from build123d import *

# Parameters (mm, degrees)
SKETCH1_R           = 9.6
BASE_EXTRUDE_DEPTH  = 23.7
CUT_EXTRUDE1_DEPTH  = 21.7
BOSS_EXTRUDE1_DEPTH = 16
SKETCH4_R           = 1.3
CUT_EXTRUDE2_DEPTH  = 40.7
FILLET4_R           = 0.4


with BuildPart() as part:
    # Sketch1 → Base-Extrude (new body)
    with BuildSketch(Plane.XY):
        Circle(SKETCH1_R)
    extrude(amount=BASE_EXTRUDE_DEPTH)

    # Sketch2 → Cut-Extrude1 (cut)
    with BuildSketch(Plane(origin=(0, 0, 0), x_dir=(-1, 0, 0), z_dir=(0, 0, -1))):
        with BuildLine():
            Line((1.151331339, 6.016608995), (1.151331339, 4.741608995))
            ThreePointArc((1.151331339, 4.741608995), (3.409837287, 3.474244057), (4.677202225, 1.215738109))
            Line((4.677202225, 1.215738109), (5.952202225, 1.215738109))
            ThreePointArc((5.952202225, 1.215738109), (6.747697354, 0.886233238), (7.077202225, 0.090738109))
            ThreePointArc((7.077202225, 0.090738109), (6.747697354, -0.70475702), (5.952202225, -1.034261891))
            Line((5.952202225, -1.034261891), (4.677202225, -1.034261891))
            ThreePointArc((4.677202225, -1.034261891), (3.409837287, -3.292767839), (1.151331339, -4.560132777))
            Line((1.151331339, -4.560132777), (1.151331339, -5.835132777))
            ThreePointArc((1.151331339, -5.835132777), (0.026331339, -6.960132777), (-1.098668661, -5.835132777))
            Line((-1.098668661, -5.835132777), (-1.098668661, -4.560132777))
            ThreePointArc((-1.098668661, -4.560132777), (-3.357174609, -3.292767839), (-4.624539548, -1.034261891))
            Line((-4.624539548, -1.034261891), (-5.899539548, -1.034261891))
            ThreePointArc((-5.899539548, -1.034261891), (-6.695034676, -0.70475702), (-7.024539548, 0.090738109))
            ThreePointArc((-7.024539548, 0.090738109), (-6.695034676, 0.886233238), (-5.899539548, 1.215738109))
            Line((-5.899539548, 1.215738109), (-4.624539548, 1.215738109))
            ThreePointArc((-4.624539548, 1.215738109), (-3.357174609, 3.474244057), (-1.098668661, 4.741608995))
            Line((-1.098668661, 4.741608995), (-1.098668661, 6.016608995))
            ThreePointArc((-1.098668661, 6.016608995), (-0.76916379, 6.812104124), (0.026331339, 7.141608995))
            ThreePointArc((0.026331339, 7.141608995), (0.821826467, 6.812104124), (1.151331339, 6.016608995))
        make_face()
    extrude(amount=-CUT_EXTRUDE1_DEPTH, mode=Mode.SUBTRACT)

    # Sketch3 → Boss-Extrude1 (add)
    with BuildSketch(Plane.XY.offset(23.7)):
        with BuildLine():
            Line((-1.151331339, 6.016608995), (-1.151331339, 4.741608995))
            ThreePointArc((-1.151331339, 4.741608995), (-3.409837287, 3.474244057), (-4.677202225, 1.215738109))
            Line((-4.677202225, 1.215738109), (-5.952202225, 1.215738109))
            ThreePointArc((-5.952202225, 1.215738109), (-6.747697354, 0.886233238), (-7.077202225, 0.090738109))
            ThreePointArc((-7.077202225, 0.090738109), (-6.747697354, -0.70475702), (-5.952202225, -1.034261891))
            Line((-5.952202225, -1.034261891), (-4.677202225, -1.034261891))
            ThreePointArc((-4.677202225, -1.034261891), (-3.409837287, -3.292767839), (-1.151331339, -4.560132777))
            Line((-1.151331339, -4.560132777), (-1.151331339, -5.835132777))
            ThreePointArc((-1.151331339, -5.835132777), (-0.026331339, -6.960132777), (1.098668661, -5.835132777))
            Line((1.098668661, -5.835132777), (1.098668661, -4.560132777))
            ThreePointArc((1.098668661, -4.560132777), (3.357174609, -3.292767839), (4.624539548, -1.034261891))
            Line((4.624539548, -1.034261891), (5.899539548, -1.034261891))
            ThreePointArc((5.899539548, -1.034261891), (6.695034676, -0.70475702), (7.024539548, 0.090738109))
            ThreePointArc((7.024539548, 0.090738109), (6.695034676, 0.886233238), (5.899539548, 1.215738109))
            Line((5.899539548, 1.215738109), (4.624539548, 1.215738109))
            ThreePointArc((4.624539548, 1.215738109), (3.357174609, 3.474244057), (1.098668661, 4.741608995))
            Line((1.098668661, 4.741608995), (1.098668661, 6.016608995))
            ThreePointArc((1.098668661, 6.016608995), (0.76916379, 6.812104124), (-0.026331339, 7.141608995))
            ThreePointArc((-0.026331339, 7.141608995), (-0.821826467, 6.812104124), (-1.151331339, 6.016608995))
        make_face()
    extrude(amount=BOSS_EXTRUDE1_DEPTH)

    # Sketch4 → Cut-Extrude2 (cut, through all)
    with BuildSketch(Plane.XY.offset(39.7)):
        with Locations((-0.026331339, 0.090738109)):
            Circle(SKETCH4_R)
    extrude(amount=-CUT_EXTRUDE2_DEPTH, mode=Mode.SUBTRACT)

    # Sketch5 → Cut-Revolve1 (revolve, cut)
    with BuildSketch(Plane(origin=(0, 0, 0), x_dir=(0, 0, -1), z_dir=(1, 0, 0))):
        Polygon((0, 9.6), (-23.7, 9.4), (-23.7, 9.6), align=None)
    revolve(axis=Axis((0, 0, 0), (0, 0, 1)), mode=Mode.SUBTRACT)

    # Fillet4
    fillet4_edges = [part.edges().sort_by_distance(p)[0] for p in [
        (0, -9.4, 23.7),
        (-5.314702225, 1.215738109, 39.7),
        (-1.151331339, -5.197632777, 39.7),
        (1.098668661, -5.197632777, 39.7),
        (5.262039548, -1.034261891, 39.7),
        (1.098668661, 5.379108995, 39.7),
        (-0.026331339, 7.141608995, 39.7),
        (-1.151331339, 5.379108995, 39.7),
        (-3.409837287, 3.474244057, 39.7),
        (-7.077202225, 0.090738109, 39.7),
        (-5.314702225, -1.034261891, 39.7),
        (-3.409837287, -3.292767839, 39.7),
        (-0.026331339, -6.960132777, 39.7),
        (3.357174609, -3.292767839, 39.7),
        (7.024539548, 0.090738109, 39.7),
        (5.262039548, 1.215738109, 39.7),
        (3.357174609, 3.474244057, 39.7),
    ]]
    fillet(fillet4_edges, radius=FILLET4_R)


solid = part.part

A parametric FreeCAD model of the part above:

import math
import FreeCAD as App
import Part
import Sketcher

V = App.Vector


def edges_at(feature, points):
    """Names of the edges that pass closest to the given points."""
    edges = feature.Shape.Edges
    near = lambda p: min(range(len(edges)), key=lambda i: edges[i].distToShape(Part.Vertex(*p))[0])
    return sorted({f"Edge{near(p) + 1}" for p in points})


def add_polygon(sketch, points):
    """Adds a closed chain of lines whose ends are joined by coincident constraints."""
    first, n = sketch.GeometryCount, len(points)
    for a, b in zip(points, points[1:] + points[:1]):
        sketch.addGeometry(Part.LineSegment(App.Vector(*a, 0), App.Vector(*b, 0)), False)
    for i in range(n):
        sketch.addConstraint(Sketcher.Constraint("Coincident", first + i, 2, first + (i + 1) % n, 1))

doc = App.newDocument("Part")
params = doc.addObject("Spreadsheet::Sheet", "Params")
for row, (alias, value) in enumerate([
    ("sketch1_diameter", "19.2 mm"),
    ("pad1_length", "23.7 mm"),
    ("pocket1_length", "21.7 mm"),
    ("pad2_length", "16 mm"),
    ("sketch4_diameter", "2.6 mm"),
    ("sketch5_width", "0.2 mm"),
    ("sketch5_height", "23.7 mm"),
    ("groove_angle", "360 deg"),
    ("fillet_radius", "0.4 mm"),
], start=1):
    params.set(f"A{row}", alias)
    params.set(f"B{row}", "=" + value)
    params.setAlias(f"B{row}", alias)

body = doc.addObject("PartDesign::Body", "Body")

sketch1 = body.newObject("Sketcher::SketchObject", "Sketch")
sketch1.AttachmentSupport = (doc.getObject("XY_Plane"), [""])
sketch1.MapMode = "FlatFace"
sketch1.addGeometry(Part.Circle(V(0, 0, 0), V(0, 0, 1), 10), False)
sketch1.addConstraint(Sketcher.Constraint("Coincident", 0, 3, -1, 1))
sketch1.addConstraint(Sketcher.Constraint("Diameter", 0, 19.2))
sketch1.setExpression("Constraints[1]", "Params.sketch1_diameter")
pad1 = body.newObject("PartDesign::Pad", "Pad")
pad1.Profile = sketch1
pad1.setExpression("Length", "Params.pad1_length")

sketch2 = body.newObject("Sketcher::SketchObject", "Sketch001")
sketch2.AttachmentSupport = (doc.getObject("XY_Plane"), [""])
sketch2.MapMode = "FlatFace"
sketch2.addGeometry(Part.LineSegment(V(-1.2, 4.7, 0), V(-1.2, 6, 0)), False)
sketch2.addGeometry(Part.ArcOfCircle(Part.Circle(V(0, 6, 0), V(0, 0, 1), 1.1), math.radians(90), math.radians(180)), False)
sketch2.addGeometry(Part.ArcOfCircle(Part.Circle(V(0, 6, 0), V(0, 0, 1), 1.1), math.radians(0), math.radians(90)), False)
sketch2.addGeometry(Part.LineSegment(V(1.1, 6, 0), V(1.1, 4.7, 0)), False)
sketch2.addGeometry(Part.ArcOfCircle(Part.Circle(V(0, 0.1, 0), V(0, 0, 1), 4.8), math.radians(14), math.radians(76)), False)
sketch2.addGeometry(Part.LineSegment(V(4.6, 1.2, 0), V(5.9, 1.2, 0)), False)
sketch2.addGeometry(Part.ArcOfCircle(Part.Circle(V(5.9, 0.1, 0), V(0, 0, 1), 1.1), math.radians(0), math.radians(90)), False)
sketch2.addGeometry(Part.ArcOfCircle(Part.Circle(V(5.9, 0.1, 0), V(0, 0, 1), 1.1), math.radians(-90), math.radians(0)), False)
sketch2.addGeometry(Part.LineSegment(V(5.9, -1, 0), V(4.6, -1, 0)), False)
sketch2.addGeometry(Part.ArcOfCircle(Part.Circle(V(0, 0.1, 0), V(0, 0, 1), 4.8), math.radians(-76), math.radians(-14)), False)
sketch2.addGeometry(Part.LineSegment(V(1.1, -4.6, 0), V(1.1, -5.8, 0)), False)
sketch2.addGeometry(Part.ArcOfCircle(Part.Circle(V(0, -5.8, 0), V(0, 0, 1), 1.1), math.radians(180), math.radians(360)), False)
sketch2.addGeometry(Part.LineSegment(V(-1.2, -5.8, 0), V(-1.2, -4.6, 0)), False)
sketch2.addGeometry(Part.ArcOfCircle(Part.Circle(V(0, 0.1, 0), V(0, 0, 1), 4.8), math.radians(-166), math.radians(-104)), False)
sketch2.addGeometry(Part.LineSegment(V(-4.7, -1, 0), V(-6, -1, 0)), False)
sketch2.addGeometry(Part.ArcOfCircle(Part.Circle(V(-6, 0.1, 0), V(0, 0, 1), 1.1), math.radians(180), math.radians(270)), False)
sketch2.addGeometry(Part.ArcOfCircle(Part.Circle(V(-6, 0.1, 0), V(0, 0, 1), 1.1), math.radians(90), math.radians(180)), False)
sketch2.addGeometry(Part.LineSegment(V(-6, 1.2, 0), V(-4.7, 1.2, 0)), False)
sketch2.addGeometry(Part.ArcOfCircle(Part.Circle(V(0, 0.1, 0), V(0, 0, 1), 4.8), math.radians(104), math.radians(166)), False)
sketch2.addConstraint(Sketcher.Constraint("Tangent", 0, 2, 1, 2))
sketch2.addConstraint(Sketcher.Constraint("Tangent", 1, 1, 2, 2))
sketch2.addConstraint(Sketcher.Constraint("Tangent", 2, 1, 3, 1))
sketch2.addConstraint(Sketcher.Constraint("Coincident", 3, 2, 4, 2))
sketch2.addConstraint(Sketcher.Constraint("Coincident", 4, 1, 5, 1))
sketch2.addConstraint(Sketcher.Constraint("Tangent", 5, 2, 6, 2))
sketch2.addConstraint(Sketcher.Constraint("Tangent", 6, 1, 7, 2))
sketch2.addConstraint(Sketcher.Constraint("Tangent", 7, 1, 8, 1))
sketch2.addConstraint(Sketcher.Constraint("Coincident", 8, 2, 9, 2))
sketch2.addConstraint(Sketcher.Constraint("Coincident", 9, 1, 10, 1))
sketch2.addConstraint(Sketcher.Constraint("Tangent", 10, 2, 11, 2))
sketch2.addConstraint(Sketcher.Constraint("Tangent", 11, 1, 12, 1))
sketch2.addConstraint(Sketcher.Constraint("Coincident", 12, 2, 13, 2))
sketch2.addConstraint(Sketcher.Constraint("Coincident", 13, 1, 14, 1))
sketch2.addConstraint(Sketcher.Constraint("Tangent", 14, 2, 15, 2))
sketch2.addConstraint(Sketcher.Constraint("Tangent", 15, 1, 16, 2))
sketch2.addConstraint(Sketcher.Constraint("Tangent", 16, 1, 17, 1))
sketch2.addConstraint(Sketcher.Constraint("Coincident", 17, 2, 18, 2))
sketch2.addConstraint(Sketcher.Constraint("Coincident", 18, 1, 0, 1))
sketch2.addConstraint(Sketcher.Constraint("Vertical", 0))
sketch2.addConstraint(Sketcher.Constraint("Vertical", 3))
sketch2.addConstraint(Sketcher.Constraint("Horizontal", 5))
sketch2.addConstraint(Sketcher.Constraint("Horizontal", 8))
sketch2.addConstraint(Sketcher.Constraint("Vertical", 10))
sketch2.addConstraint(Sketcher.Constraint("Vertical", 12))
sketch2.addConstraint(Sketcher.Constraint("Horizontal", 14))
sketch2.addConstraint(Sketcher.Constraint("Horizontal", 17))
sketch2.addConstraint(Sketcher.Constraint("Coincident", 9, 3, 4, 3))
sketch2.addConstraint(Sketcher.Constraint("Coincident", 13, 3, 4, 3))
sketch2.addConstraint(Sketcher.Constraint("Coincident", 18, 3, 4, 3))
sketch2.addConstraint(Sketcher.Constraint("Equal", 1, 2))
sketch2.addConstraint(Sketcher.Constraint("Equal", 2, 6))
sketch2.addConstraint(Sketcher.Constraint("Equal", 6, 7))
sketch2.addConstraint(Sketcher.Constraint("Equal", 4, 9))
sketch2.addConstraint(Sketcher.Constraint("Equal", 7, 11))
sketch2.addConstraint(Sketcher.Constraint("Equal", 9, 13))
sketch2.addConstraint(Sketcher.Constraint("Equal", 11, 15))
sketch2.addConstraint(Sketcher.Constraint("Equal", 15, 16))
sketch2.addConstraint(Sketcher.Constraint("Equal", 13, 18))
sketch2.addConstraint(Sketcher.Constraint("Horizontal", 4, 3, 6, 3))
sketch2.addConstraint(Sketcher.Constraint("Horizontal", 13, 3, 15, 3))
sketch2.addConstraint(Sketcher.Constraint("Horizontal", 18, 3, 6, 1))
sketch2.addConstraint(Sketcher.Constraint("Horizontal", 9, 1, 12, 2))
sketch2.addConstraint(Sketcher.Constraint("Horizontal", 6, 1, 15, 1))
sketch2.addConstraint(Sketcher.Constraint("Horizontal", 3, 2, 18, 1))
sketch2.addConstraint(Sketcher.Constraint("Vertical", 18, 3, 1, 1))
sketch2.addConstraint(Sketcher.Constraint("Equal", 8, 14))
sketch2.addConstraint(Sketcher.Constraint("Equal", 17, 0))
sketch2.addConstraint(Sketcher.Constraint("Equal", 3, 10))
sketch2.addConstraint(Sketcher.Constraint("Radius", 1, 1.125))
sketch2.addConstraint(Sketcher.Constraint("Radius", 4, 4.785))
sketch2.addConstraint(Sketcher.Constraint("DistanceY", 3, 2, 1, 1, 2.4))
sketch2.addConstraint(Sketcher.Constraint("DistanceX", 1, 3, -1, 1, 0.026331))
sketch2.addConstraint(Sketcher.Constraint("DistanceY", -1, 1, 1, 3, 6.016609))
pocket1 = body.newObject("PartDesign::Pocket", "Pocket")
pocket1.Profile = sketch2
pocket1.setExpression("Length", "Params.pocket1_length")
pocket1.Reversed = True

sketch3 = body.newObject("Sketcher::SketchObject", "Sketch002")
sketch3.AttachmentSupport = (doc.getObject("XY_Plane"), [""])
sketch3.MapMode = "FlatFace"
sketch3.AttachmentOffset = App.Placement(V(0, 0, 23.7), App.Rotation())
sketch3.addGeometry(Part.LineSegment(V(-1.2, 6, 0), V(-1.2, 4.7, 0)), False)
sketch3.addGeometry(Part.ArcOfCircle(Part.Circle(V(0, 0.1, 0), V(0, 0, 1), 4.8), math.radians(104), math.radians(166)), False)
sketch3.addGeometry(Part.LineSegment(V(-4.7, 1.2, 0), V(-6, 1.2, 0)), False)
sketch3.addGeometry(Part.ArcOfCircle(Part.Circle(V(-6, 0.1, 0), V(0, 0, 1), 1.1), math.radians(90), math.radians(180)), False)
sketch3.addGeometry(Part.ArcOfCircle(Part.Circle(V(-6, 0.1, 0), V(0, 0, 1), 1.1), math.radians(180), math.radians(270)), False)
sketch3.addGeometry(Part.LineSegment(V(-6, -1, 0), V(-4.7, -1, 0)), False)
sketch3.addGeometry(Part.ArcOfCircle(Part.Circle(V(0, 0.1, 0), V(0, 0, 1), 4.8), math.radians(-166), math.radians(-104)), False)
sketch3.addGeometry(Part.LineSegment(V(-1.2, -4.6, 0), V(-1.2, -5.8, 0)), False)
sketch3.addGeometry(Part.ArcOfCircle(Part.Circle(V(0, -5.8, 0), V(0, 0, 1), 1.1), math.radians(180), math.radians(360)), False)
sketch3.addGeometry(Part.LineSegment(V(1.1, -5.8, 0), V(1.1, -4.6, 0)), False)
sketch3.addGeometry(Part.ArcOfCircle(Part.Circle(V(0, 0.1, 0), V(0, 0, 1), 4.8), math.radians(-76), math.radians(-14)), False)
sketch3.addGeometry(Part.LineSegment(V(4.6, -1, 0), V(5.9, -1, 0)), False)
sketch3.addGeometry(Part.ArcOfCircle(Part.Circle(V(5.9, 0.1, 0), V(0, 0, 1), 1.1), math.radians(-90), math.radians(0)), False)
sketch3.addGeometry(Part.ArcOfCircle(Part.Circle(V(5.9, 0.1, 0), V(0, 0, 1), 1.1), math.radians(0), math.radians(90)), False)
sketch3.addGeometry(Part.LineSegment(V(5.9, 1.2, 0), V(4.6, 1.2, 0)), False)
sketch3.addGeometry(Part.ArcOfCircle(Part.Circle(V(0, 0.1, 0), V(0, 0, 1), 4.8), math.radians(14), math.radians(76)), False)
sketch3.addGeometry(Part.LineSegment(V(1.1, 4.7, 0), V(1.1, 6, 0)), False)
sketch3.addGeometry(Part.ArcOfCircle(Part.Circle(V(0, 6, 0), V(0, 0, 1), 1.1), math.radians(0), math.radians(90)), False)
sketch3.addGeometry(Part.ArcOfCircle(Part.Circle(V(0, 6, 0), V(0, 0, 1), 1.1), math.radians(90), math.radians(180)), False)
sketch3.addConstraint(Sketcher.Constraint("Coincident", 0, 2, 1, 1))
sketch3.addConstraint(Sketcher.Constraint("Coincident", 1, 2, 2, 1))
sketch3.addConstraint(Sketcher.Constraint("Tangent", 2, 2, 3, 1))
sketch3.addConstraint(Sketcher.Constraint("Tangent", 3, 2, 4, 1))
sketch3.addConstraint(Sketcher.Constraint("Tangent", 4, 2, 5, 1))
sketch3.addConstraint(Sketcher.Constraint("Coincident", 5, 2, 6, 1))
sketch3.addConstraint(Sketcher.Constraint("Coincident", 6, 2, 7, 1))
sketch3.addConstraint(Sketcher.Constraint("Tangent", 7, 2, 8, 1))
sketch3.addConstraint(Sketcher.Constraint("Tangent", 8, 2, 9, 1))
sketch3.addConstraint(Sketcher.Constraint("Coincident", 9, 2, 10, 1))
sketch3.addConstraint(Sketcher.Constraint("Coincident", 10, 2, 11, 1))
sketch3.addConstraint(Sketcher.Constraint("Tangent", 11, 2, 12, 1))
sketch3.addConstraint(Sketcher.Constraint("Tangent", 12, 2, 13, 1))
sketch3.addConstraint(Sketcher.Constraint("Tangent", 13, 2, 14, 1))
sketch3.addConstraint(Sketcher.Constraint("Coincident", 14, 2, 15, 1))
sketch3.addConstraint(Sketcher.Constraint("Coincident", 15, 2, 16, 1))
sketch3.addConstraint(Sketcher.Constraint("Tangent", 16, 2, 17, 1))
sketch3.addConstraint(Sketcher.Constraint("Tangent", 17, 2, 18, 1))
sketch3.addConstraint(Sketcher.Constraint("Tangent", 18, 2, 0, 1))
sketch3.addConstraint(Sketcher.Constraint("Vertical", 0))
sketch3.addConstraint(Sketcher.Constraint("Horizontal", 2))
sketch3.addConstraint(Sketcher.Constraint("Horizontal", 5))
sketch3.addConstraint(Sketcher.Constraint("Vertical", 7))
sketch3.addConstraint(Sketcher.Constraint("Vertical", 9))
sketch3.addConstraint(Sketcher.Constraint("Horizontal", 11))
sketch3.addConstraint(Sketcher.Constraint("Horizontal", 14))
sketch3.addConstraint(Sketcher.Constraint("Vertical", 16))
sketch3.addConstraint(Sketcher.Constraint("Coincident", 6, 3, 1, 3))
sketch3.addConstraint(Sketcher.Constraint("Coincident", 10, 3, 1, 3))
sketch3.addConstraint(Sketcher.Constraint("Coincident", 15, 3, 1, 3))
sketch3.addConstraint(Sketcher.Constraint("Equal", 3, 4))
sketch3.addConstraint(Sketcher.Constraint("Equal", 1, 6))
sketch3.addConstraint(Sketcher.Constraint("Equal", 4, 8))
sketch3.addConstraint(Sketcher.Constraint("Equal", 6, 10))
sketch3.addConstraint(Sketcher.Constraint("Equal", 8, 12))
sketch3.addConstraint(Sketcher.Constraint("Equal", 12, 13))
sketch3.addConstraint(Sketcher.Constraint("Equal", 10, 15))
sketch3.addConstraint(Sketcher.Constraint("Equal", 13, 17))
sketch3.addConstraint(Sketcher.Constraint("Equal", 17, 18))
sketch3.addConstraint(Sketcher.Constraint("Horizontal", 1, 3, 3, 3))
sketch3.addConstraint(Sketcher.Constraint("Horizontal", 10, 3, 12, 3))
sketch3.addConstraint(Sketcher.Constraint("Horizontal", 15, 3, 3, 2))
sketch3.addConstraint(Sketcher.Constraint("Horizontal", 6, 2, 9, 2))
sketch3.addConstraint(Sketcher.Constraint("Horizontal", 3, 2, 12, 2))
sketch3.addConstraint(Sketcher.Constraint("Horizontal", 0, 2, 15, 2))
sketch3.addConstraint(Sketcher.Constraint("Vertical", 18, 3, 17, 2))
sketch3.addConstraint(Sketcher.Constraint("Equal", 5, 11))
sketch3.addConstraint(Sketcher.Constraint("Equal", 14, 0))
sketch3.addConstraint(Sketcher.Constraint("Equal", 0, 7))
sketch3.addConstraint(Sketcher.Constraint("Radius", 1, 4.785))
sketch3.addConstraint(Sketcher.Constraint("Radius", 3, 1.125))
sketch3.addConstraint(Sketcher.Constraint("DistanceX", 3, 2, 1, 2, 2.4))
sketch3.addConstraint(Sketcher.Constraint("DistanceX", 1, 3, -1, 1, 0.026331))
sketch3.addConstraint(Sketcher.Constraint("DistanceY", -1, 1, 1, 3, 0.090738))
pad2 = body.newObject("PartDesign::Pad", "Pad001")
pad2.Profile = sketch3
pad2.setExpression("Length", "Params.pad2_length")

sketch4 = body.newObject("Sketcher::SketchObject", "Sketch003")
sketch4.AttachmentSupport = (doc.getObject("XY_Plane"), [""])
sketch4.MapMode = "FlatFace"
sketch4.AttachmentOffset = App.Placement(V(0, 0, 39.7), App.Rotation())
sketch4.addGeometry(Part.Circle(V(0, 0.1, 0), V(0, 0, 1), 1.3), False)
sketch4.addConstraint(Sketcher.Constraint("Diameter", 0, 2.6))
sketch4.addConstraint(Sketcher.Constraint("DistanceX", 0, 3, -1, 1, 0.026331))
sketch4.addConstraint(Sketcher.Constraint("DistanceY", -1, 1, 0, 3, 0.090738))
sketch4.setExpression("Constraints[0]", "Params.sketch4_diameter")
pocket2 = body.newObject("PartDesign::Pocket", "Pocket001")
pocket2.Profile = sketch4
pocket2.Type = "ThroughAll"

sketch5 = body.newObject("Sketcher::SketchObject", "Sketch004")
sketch5.AttachmentSupport = (doc.getObject("YZ_Plane"), [""])
sketch5.MapMode = "FlatFace"
add_polygon(sketch5, [(9.4, 23.7), (9.6, 0), (9.6, 23.7)])
sketch5.addConstraint(Sketcher.Constraint("Vertical", 1))
sketch5.addConstraint(Sketcher.Constraint("Horizontal", 2))
sketch5.addConstraint(Sketcher.Constraint("PointOnObject", 0, 2, -1))
sketch5.addConstraint(Sketcher.Constraint("DistanceX", 2, 2, 2, 1, 0.2))
sketch5.addConstraint(Sketcher.Constraint("DistanceY", 1, 1, 1, 2, 23.7))
sketch5.addConstraint(Sketcher.Constraint("DistanceX", -1, 1, 0, 2, 9.6))
sketch5.setExpression("Constraints[6]", "Params.sketch5_width")
sketch5.setExpression("Constraints[7]", "Params.sketch5_height")
groove = body.newObject("PartDesign::Groove", "Groove")
groove.Profile = sketch5
groove.ReferenceAxis = (sketch5, ["V_Axis"])
groove.setExpression("Angle", "Params.groove_angle")
doc.recompute()

fillet = body.newObject("PartDesign::Fillet", "Fillet")
fillet.Base = (groove, edges_at(groove, [
    (0, -9.4, 23.7),
    (-5.315, 1.216, 39.7),
    (-1.151, -5.198, 39.7),
    (1.099, -5.198, 39.7),
    (5.262, -1.034, 39.7),
    (1.099, 5.379, 39.7),
    (-0.822, 6.812, 39.7),
    (-1.151, 5.379, 39.7),
    (-3.41, 3.474, 39.7),
    (-6.748, 0.886, 39.7),
    (-5.315, -1.034, 39.7),
    (-3.41, -3.293, 39.7),
    (-0.026, -6.96, 39.7),
    (3.357, -3.293, 39.7),
    (6.695, 0.886, 39.7),
    (5.262, 1.216, 39.7),
    (3.357, 3.474, 39.7),
]))
fillet.setExpression("Radius", "Params.fillet_radius")

doc.recompute()
